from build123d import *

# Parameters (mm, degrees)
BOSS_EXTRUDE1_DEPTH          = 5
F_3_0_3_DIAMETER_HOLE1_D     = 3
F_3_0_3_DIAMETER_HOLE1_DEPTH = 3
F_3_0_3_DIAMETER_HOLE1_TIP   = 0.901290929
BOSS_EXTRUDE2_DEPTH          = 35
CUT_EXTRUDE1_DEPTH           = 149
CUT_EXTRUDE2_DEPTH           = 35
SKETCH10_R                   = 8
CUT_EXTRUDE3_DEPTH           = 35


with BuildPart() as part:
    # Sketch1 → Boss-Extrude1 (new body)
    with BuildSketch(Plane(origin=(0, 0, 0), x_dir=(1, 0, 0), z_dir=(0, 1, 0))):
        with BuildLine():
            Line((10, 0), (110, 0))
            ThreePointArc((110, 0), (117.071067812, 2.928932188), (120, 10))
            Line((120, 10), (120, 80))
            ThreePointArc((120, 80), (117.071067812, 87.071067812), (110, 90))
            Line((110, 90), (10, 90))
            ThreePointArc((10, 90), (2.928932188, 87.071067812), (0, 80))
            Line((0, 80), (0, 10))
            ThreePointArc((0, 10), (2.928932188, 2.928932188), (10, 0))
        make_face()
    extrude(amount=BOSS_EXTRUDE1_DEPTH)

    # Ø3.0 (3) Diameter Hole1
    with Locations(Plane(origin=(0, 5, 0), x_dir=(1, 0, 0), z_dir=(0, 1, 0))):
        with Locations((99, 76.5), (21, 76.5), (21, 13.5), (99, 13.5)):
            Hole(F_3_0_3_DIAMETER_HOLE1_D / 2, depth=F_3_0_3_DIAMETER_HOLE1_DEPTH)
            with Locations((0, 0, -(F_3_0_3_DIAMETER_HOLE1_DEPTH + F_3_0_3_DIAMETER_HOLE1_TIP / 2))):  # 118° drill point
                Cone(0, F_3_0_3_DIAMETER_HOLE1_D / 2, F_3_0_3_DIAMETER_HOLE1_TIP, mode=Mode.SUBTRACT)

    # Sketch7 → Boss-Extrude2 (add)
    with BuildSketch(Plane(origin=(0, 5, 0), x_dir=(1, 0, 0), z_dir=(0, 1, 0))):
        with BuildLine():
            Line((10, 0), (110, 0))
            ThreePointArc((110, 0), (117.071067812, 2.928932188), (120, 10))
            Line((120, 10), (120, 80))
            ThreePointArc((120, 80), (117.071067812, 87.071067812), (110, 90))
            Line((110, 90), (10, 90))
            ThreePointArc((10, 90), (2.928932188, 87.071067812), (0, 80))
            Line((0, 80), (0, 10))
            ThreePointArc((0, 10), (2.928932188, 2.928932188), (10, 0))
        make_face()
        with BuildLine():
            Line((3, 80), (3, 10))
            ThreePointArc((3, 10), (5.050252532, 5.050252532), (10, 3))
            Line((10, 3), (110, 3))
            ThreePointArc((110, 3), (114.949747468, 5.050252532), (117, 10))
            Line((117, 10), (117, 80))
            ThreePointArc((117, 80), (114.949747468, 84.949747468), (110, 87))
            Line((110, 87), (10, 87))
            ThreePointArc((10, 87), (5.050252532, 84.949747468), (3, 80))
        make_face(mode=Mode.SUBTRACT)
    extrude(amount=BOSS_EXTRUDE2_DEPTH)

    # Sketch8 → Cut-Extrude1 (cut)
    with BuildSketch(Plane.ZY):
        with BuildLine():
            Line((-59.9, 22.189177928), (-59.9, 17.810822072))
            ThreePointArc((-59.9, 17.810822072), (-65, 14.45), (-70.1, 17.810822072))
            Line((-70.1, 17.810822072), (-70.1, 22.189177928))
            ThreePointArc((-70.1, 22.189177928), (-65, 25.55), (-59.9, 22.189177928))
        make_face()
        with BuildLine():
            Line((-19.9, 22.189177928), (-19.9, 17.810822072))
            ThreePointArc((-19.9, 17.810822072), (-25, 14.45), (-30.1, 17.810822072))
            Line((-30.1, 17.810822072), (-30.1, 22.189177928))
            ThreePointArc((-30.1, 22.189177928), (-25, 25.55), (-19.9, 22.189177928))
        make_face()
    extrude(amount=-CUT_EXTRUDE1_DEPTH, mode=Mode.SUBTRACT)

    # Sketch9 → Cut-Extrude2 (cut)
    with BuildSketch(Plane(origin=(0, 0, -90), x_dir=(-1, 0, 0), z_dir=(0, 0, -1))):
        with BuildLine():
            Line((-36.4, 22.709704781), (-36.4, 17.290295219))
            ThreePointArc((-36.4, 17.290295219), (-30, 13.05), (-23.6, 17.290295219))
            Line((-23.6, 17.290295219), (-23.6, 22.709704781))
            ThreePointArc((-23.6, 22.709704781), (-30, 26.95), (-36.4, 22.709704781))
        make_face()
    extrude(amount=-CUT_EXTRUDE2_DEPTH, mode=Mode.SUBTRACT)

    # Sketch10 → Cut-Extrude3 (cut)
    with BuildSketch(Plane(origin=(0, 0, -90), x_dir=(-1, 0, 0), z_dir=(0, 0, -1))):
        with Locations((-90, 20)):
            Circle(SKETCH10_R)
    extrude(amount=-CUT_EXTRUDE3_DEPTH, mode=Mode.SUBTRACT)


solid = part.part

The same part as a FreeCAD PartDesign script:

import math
import FreeCAD as App
import Part
import Sketcher
from FreeCAD import Vector

doc = App.newDocument("Part")
body = doc.addObject("PartDesign::Body", "Body")

sketch1 = doc.addObject("Sketcher::SketchObject", "Sketch")
body.addObject(sketch1)
sketch1.AttachmentSupport = (doc.XZ_Plane, [""])
sketch1.MapMode = "FlatFace"
sketch1.addGeometry(Part.LineSegment(Vector(10, 0, 0), Vector(110, 0, 0)), False)
sketch1.addGeometry(Part.ArcOfCircle(Part.Circle(Vector(110, -10, 0), Vector(0, 0, 1), 10), math.radians(0), math.radians(90)), False)
sketch1.addGeometry(Part.LineSegment(Vector(120, -10, 0), Vector(120, -80, 0)), False)
sketch1.addGeometry(Part.ArcOfCircle(Part.Circle(Vector(110, -80, 0), Vector(0, 0, 1), 10), math.radians(-90), math.radians(0)), False)
sketch1.addGeometry(Part.LineSegment(Vector(110, -90, 0), Vector(10, -90, 0)), False)
sketch1.addGeometry(Part.ArcOfCircle(Part.Circle(Vector(10, -80, 0), Vector(0, 0, 1), 10), math.radians(180), math.radians(270)), False)
sketch1.addGeometry(Part.LineSegment(Vector(0, -80, 0), Vector(0, -10, 0)), False)
sketch1.addGeometry(Part.ArcOfCircle(Part.Circle(Vector(10, -10, 0), Vector(0, 0, 1), 10), math.radians(90), math.radians(180)), False)
sketch1.addConstraint(Sketcher.Constraint("Tangent", 0, 2, 1, 2))
sketch1.addConstraint(Sketcher.Constraint("Tangent", 1, 1, 2, 1))
sketch1.addConstraint(Sketcher.Constraint("Tangent", 2, 2, 3, 2))
sketch1.addConstraint(Sketcher.Constraint("Tangent", 3, 1, 4, 1))
sketch1.addConstraint(Sketcher.Constraint("Tangent", 4, 2, 5, 2))
sketch1.addConstraint(Sketcher.Constraint("Tangent", 5, 1, 6, 1))
sketch1.addConstraint(Sketcher.Constraint("Tangent", 6, 2, 7, 2))
sketch1.addConstraint(Sketcher.Constraint("Tangent", 7, 1, 0, 1))
sketch1.addConstraint(Sketcher.Constraint("Horizontal", 0))
sketch1.addConstraint(Sketcher.Constraint("Vertical", 2))
sketch1.addConstraint(Sketcher.Constraint("Horizontal", 4))
sketch1.addConstraint(Sketcher.Constraint("Vertical", 6))
sketch1.addConstraint(Sketcher.Constraint("Equal", 1, 3))
sketch1.addConstraint(Sketcher.Constraint("Equal", 3, 5))
sketch1.addConstraint(Sketcher.Constraint("Equal", 5, 7))
sketch1.addConstraint(Sketcher.Constraint("PointOnObject", 0, 2, -1))
sketch1.addConstraint(Sketcher.Constraint("PointOnObject", 5, 1, -2))
sketch1.addConstraint(Sketcher.Constraint("Radius", 1, 10.0))
sketch1.addConstraint(Sketcher.Constraint("DistanceX", 0, 1, 0, 2, 100.0))
sketch1.addConstraint(Sketcher.Constraint("DistanceY", 2, 2, 2, 1, 70.0))
pad1 = doc.addObject("PartDesign::Pad", "Pad")
body.addObject(pad1)
pad1.Profile = sketch1
pad1.Length = 5
pad1.Reversed = True

sketch2 = doc.addObject("Sketcher::SketchObject", "Sketch001")
body.addObject(sketch2)
sketch2.AttachmentSupport = (doc.XZ_Plane, [""])
sketch2.MapMode = "FlatFace"
sketch2.AttachmentOffset = App.Placement(Vector(0, 0, -5), App.Rotation())
sketch2.addGeometry(Part.Circle(Vector(99, -76.5, 0), Vector(0, 0, 1), 1.5), False)
sketch2.addGeometry(Part.Circle(Vector(21, -76.5, 0), Vector(0, 0, 1), 1.5), False)
sketch2.addGeometry(Part.Circle(Vector(21, -13.5, 0), Vector(0, 0, 1), 1.5), False)
sketch2.addGeometry(Part.Circle(Vector(99, -13.5, 0), Vector(0, 0, 1), 1.5), False)
sketch2.addConstraint(Sketcher.Constraint("Equal", 0, 1))
sketch2.addConstraint(Sketcher.Constraint("Equal", 1, 2))
sketch2.addConstraint(Sketcher.Constraint("Equal", 2, 3))
sketch2.addConstraint(Sketcher.Constraint("Horizontal", 0, 3, 1, 3))
sketch2.addConstraint(Sketcher.Constraint("Horizontal", 2, 3, 3, 3))
sketch2.addConstraint(Sketcher.Constraint("Vertical", 1, 3, 2, 3))
sketch2.addConstraint(Sketcher.Constraint("Vertical", 0, 3, 3, 3))
sketch2.addConstraint(Sketcher.Constraint("Diameter", 0, 3.0))
sketch2.addConstraint(Sketcher.Constraint("DistanceX", -1, 1, 0, 3, 99.0))
sketch2.addConstraint(Sketcher.Constraint("DistanceX", -1, 1, 1, 3, 21.0))
sketch2.addConstraint(Sketcher.Constraint("DistanceY", 1, 3, 2, 3, 63.0))
sketch2.addConstraint(Sketcher.Constraint("DistanceY", 0, 3, -1, 1, 76.5))
doc.recompute()
hole = doc.addObject("PartDesign::Hole", "Hole")
body.addObject(hole)
hole.Profile = sketch2
hole.ThreadType = "None"
hole.Diameter = 3
hole.DepthType = "Dimension"
hole.Depth = 3
hole.DrillPoint = "Angled"
hole.DrillPointAngle = 118
hole.Reversed = True

sketch3 = doc.addObject("Sketcher::SketchObject", "Sketch002")
body.addObject(sketch3)
sketch3.AttachmentSupport = (doc.XZ_Plane, [""])
sketch3.MapMode = "FlatFace"
sketch3.AttachmentOffset = App.Placement(Vector(0, 0, -5), App.Rotation())
sketch3.addGeometry(Part.LineSegment(Vector(10, 0, 0), Vector(110, 0, 0)), False)
sketch3.addGeometry(Part.ArcOfCircle(Part.Circle(Vector(110, -10, 0), Vector(0, 0, 1), 10), math.radians(0), math.radians(90)), False)
sketch3.addGeometry(Part.LineSegment(Vector(120, -10, 0), Vector(120, -80, 0)), False)
sketch3.addGeometry(Part.ArcOfCircle(Part.Circle(Vector(110, -80, 0), Vector(0, 0, 1), 10), math.radians(-90), math.radians(0)), False)
sketch3.addGeometry(Part.LineSegment(Vector(110, -90, 0), Vector(10, -90, 0)), False)
sketch3.addGeometry(Part.ArcOfCircle(Part.Circle(Vector(10, -80, 0), Vector(0, 0, 1), 10), math.radians(180), math.radians(270)), False)
sketch3.addGeometry(Part.LineSegment(Vector(0, -80, 0), Vector(0, -10, 0)), False)
sketch3.addGeometry(Part.ArcOfCircle(Part.Circle(Vector(10, -10, 0), Vector(0, 0, 1), 10), math.radians(90), math.radians(180)), False)
sketch3.addGeometry(Part.LineSegment(Vector(3, -10, 0), Vector(3, -80, 0)), False)
sketch3.addGeometry(Part.ArcOfCircle(Part.Circle(Vector(10, -80, 0), Vector(0, 0, 1), 7), math.radians(-180), math.radians(-90)), False)
sketch3.addGeometry(Part.LineSegment(Vector(10, -87, 0), Vector(110, -87, 0)), False)
sketch3.addGeometry(Part.ArcOfCircle(Part.Circle(Vector(110, -80, 0), Vector(0, 0, 1), 7), math.radians(-90), math.radians(0)), False)
sketch3.addGeometry(Part.LineSegment(Vector(117, -80, 0), Vector(117, -10, 0)), False)
sketch3.addGeometry(Part.ArcOfCircle(Part.Circle(Vector(110, -10, 0), Vector(0, 0, 1), 7), math.radians(0), math.radians(90)), False)
sketch3.addGeometry(Part.LineSegment(Vector(110, -3, 0), Vector(10, -3, 0)), False)
sketch3.addGeometry(Part.ArcOfCircle(Part.Circle(Vector(10, -10, 0), Vector(0, 0, 1), 7), math.radians(90), math.radians(180)), False)
sketch3.addConstraint(Sketcher.Constraint("Tangent", 0, 2, 1, 2))
sketch3.addConstraint(Sketcher.Constraint("Tangent", 1, 1, 2, 1))
sketch3.addConstraint(Sketcher.Constraint("Tangent", 2, 2, 3, 2))
sketch3.addConstraint(Sketcher.Constraint("Tangent", 3, 1, 4, 1))
sketch3.addConstraint(Sketcher.Constraint("Tangent", 4, 2, 5, 2))
sketch3.addConstraint(Sketcher.Constraint("Tangent", 5, 1, 6, 1))
sketch3.addConstraint(Sketcher.Constraint("Tangent", 6, 2, 7, 2))
sketch3.addConstraint(Sketcher.Constraint("Tangent", 7, 1, 0, 1))
sketch3.addConstraint(Sketcher.Constraint("Tangent", 8, 2, 9, 1))
sketch3.addConstraint(Sketcher.Constraint("Tangent", 9, 2, 10, 1))
sketch3.addConstraint(Sketcher.Constraint("Tangent", 10, 2, 11, 1))
sketch3.addConstraint(Sketcher.Constraint("Tangent", 11, 2, 12, 1))
sketch3.addConstraint(Sketcher.Constraint("Tangent", 12, 2, 13, 1))
sketch3.addConstraint(Sketcher.Constraint("Tangent", 13, 2, 14, 1))
sketch3.addConstraint(Sketcher.Constraint("Tangent", 14, 2, 15, 1))
sketch3.addConstraint(Sketcher.Constraint("Tangent", 15, 2, 8, 1))
sketch3.addConstraint(Sketcher.Constraint("Horizontal", 0))
sketch3.addConstraint(Sketcher.Constraint("Vertical", 2))
sketch3.addConstraint(Sketcher.Constraint("Horizontal", 4))
sketch3.addConstraint(Sketcher.Constraint("Vertical", 6))
sketch3.addConstraint(Sketcher.Constraint("Vertical", 8))
sketch3.addConstraint(Sketcher.Constraint("Horizontal", 10))
sketch3.addConstraint(Sketcher.Constraint("Vertical", 12))
sketch3.addConstraint(Sketcher.Constraint("Horizontal", 14))
sketch3.addConstraint(Sketcher.Constraint("Coincident", 9, 3, 5, 3))
sketch3.addConstraint(Sketcher.Constraint("Coincident", 11, 3, 3, 3))
sketch3.addConstraint(Sketcher.Constraint("Coincident", 13, 3, 1, 3))
sketch3.addConstraint(Sketcher.Constraint("Equal", 1, 3))
sketch3.addConstraint(Sketcher.Constraint("Equal", 3, 5))
sketch3.addConstraint(Sketcher.Constraint("Equal", 5, 7))
sketch3.addConstraint(Sketcher.Constraint("Equal", 13, 15))
sketch3.addConstraint(Sketcher.Constraint("PointOnObject", 0, 2, -1))
sketch3.addConstraint(Sketcher.Constraint("PointOnObject", 5, 1, -2))
sketch3.addConstraint(Sketcher.Constraint("Radius", 1, 10.0))
sketch3.addConstraint(Sketcher.Constraint("Radius", 9, 7.0))
sketch3.addConstraint(Sketcher.Constraint("DistanceX", 0, 1, 0, 2, 100.0))
sketch3.addConstraint(Sketcher.Constraint("DistanceY", 2, 2, 2, 1, 70.0))
pad2 = doc.addObject("PartDesign::Pad", "Pad001")
body.addObject(pad2)
pad2.Profile = sketch3
pad2.Length = 35
pad2.Reversed = True

sketch4 = doc.addObject("Sketcher::SketchObject", "Sketch003")
body.addObject(sketch4)
sketch4.AttachmentSupport = (doc.YZ_Plane, [""])
sketch4.MapMode = "FlatFace"
sketch4.addGeometry(Part.LineSegment(Vector(17.8, -59.9, 0), Vector(22.2, -59.9, 0)), False)
sketch4.addGeometry(Part.ArcOfCircle(Part.Circle(Vector(20, -65, 0), Vector(0, 0, 1), 5.5), math.radians(-67), math.radians(67)), False)
sketch4.addGeometry(Part.LineSegment(Vector(22.2, -70.1, 0), Vector(17.8, -70.1, 0)), False)
sketch4.addGeometry(Part.ArcOfCircle(Part.Circle(Vector(20, -65, 0), Vector(0, 0, 1), 5.5), math.radians(113), math.radians(247)), False)
sketch4.addGeometry(Part.LineSegment(Vector(17.8, -19.9, 0), Vector(22.2, -19.9, 0)), False)
sketch4.addGeometry(Part.ArcOfCircle(Part.Circle(Vector(20, -25, 0), Vector(0, 0, 1), 5.5), math.radians(-67), math.radians(67)), False)
sketch4.addGeometry(Part.LineSegment(Vector(22.2, -30.1, 0), Vector(17.8, -30.1, 0)), False)
sketch4.addGeometry(Part.ArcOfCircle(Part.Circle(Vector(20, -25, 0), Vector(0, 0, 1), 5.5), math.radians(113), math.radians(247)), False)
sketch4.addConstraint(Sketcher.Constraint("Coincident", 0, 2, 1, 2))
sketch4.addConstraint(Sketcher.Constraint("Coincident", 1, 1, 2, 1))
sketch4.addConstraint(Sketcher.Constraint("Coincident", 2, 2, 3, 2))
sketch4.addConstraint(Sketcher.Constraint("Coincident", 3, 1, 0, 1))
sketch4.addConstraint(Sketcher.Constraint("Coincident", 4, 2, 5, 2))
sketch4.addConstraint(Sketcher.Constraint("Coincident", 5, 1, 6, 1))
sketch4.addConstraint(Sketcher.Constraint("Coincident", 6, 2, 7, 2))
sketch4.addConstraint(Sketcher.Constraint("Coincident", 7, 1, 4, 1))
sketch4.addConstraint(Sketcher.Constraint("Horizontal", 0))
sketch4.addConstraint(Sketcher.Constraint("Horizontal", 2))
sketch4.addConstraint(Sketcher.Constraint("Horizontal", 4))
sketch4.addConstraint(Sketcher.Constraint("Horizontal", 6))
sketch4.addConstraint(Sketcher.Constraint("Coincident", 3, 3, 1, 3))
sketch4.addConstraint(Sketcher.Constraint("Coincident", 7, 3, 5, 3))
sketch4.addConstraint(Sketcher.Constraint("Equal", 1, 3))
sketch4.addConstraint(Sketcher.Constraint("Equal", 3, 5))
sketch4.addConstraint(Sketcher.Constraint("Equal", 5, 7))
sketch4.addConstraint(Sketcher.Constraint("Vertical", 3, 3, 5, 3))
sketch4.addConstraint(Sketcher.Constraint("Vertical", 0, 2, 1, 1))
sketch4.addConstraint(Sketcher.Constraint("Vertical", 1, 1, 4, 2))
sketch4.addConstraint(Sketcher.Constraint("Vertical", 4, 2, 5, 1))
sketch4.addConstraint(Sketcher.Constraint("Radius", 1, 5.55))
sketch4.addConstraint(Sketcher.Constraint("DistanceX", -1, 1, 1, 3, 20.0))
sketch4.addConstraint(Sketcher.Constraint("DistanceY", 1, 3, -1, 1, 65.0))
sketch4.addConstraint(Sketcher.Constraint("DistanceY", 5, 3, -1, 1, 25.0))
sketch4.addConstraint(Sketcher.Constraint("DistanceY", 0, 2, -1, 1, 59.9))
pocket1 = doc.addObject("PartDesign::Pocket", "Pocket")
body.addObject(pocket1)
pocket1.Profile = sketch4
pocket1.Length = 149
pocket1.Reversed = True

sketch5 = doc.addObject("Sketcher::SketchObject", "Sketch004")
body.addObject(sketch5)
sketch5.AttachmentSupport = (doc.XY_Plane, [""])
sketch5.MapMode = "FlatFace"
sketch5.AttachmentOffset = App.Placement(Vector(0, 0, -90), App.Rotation())
sketch5.addGeometry(Part.LineSegment(Vector(36, 23, 0), Vector(36, 17, 0)), False)
sketch5.addGeometry(Part.ArcOfCircle(Part.Circle(Vector(30, 20, 0), Vector(0, 0, 1), 7), math.radians(-157), math.radians(-23)), False)
sketch5.addGeometry(Part.LineSegment(Vector(24, 17, 0), Vector(24, 23, 0)), False)
sketch5.addGeometry(Part.ArcOfCircle(Part.Circle(Vector(30, 20, 0), Vector(0, 0, 1), 7), math.radians(23), math.radians(157)), False)
sketch5.addConstraint(Sketcher.Constraint("Coincident", 0, 2, 1, 2))
sketch5.addConstraint(Sketcher.Constraint("Coincident", 1, 1, 2, 1))
sketch5.addConstraint(Sketcher.Constraint("Coincident", 2, 2, 3, 2))
sketch5.addConstraint(Sketcher.Constraint("Coincident", 3, 1, 0, 1))
sketch5.addConstraint(Sketcher.Constraint("Vertical", 0))
sketch5.addConstraint(Sketcher.Constraint("Vertical", 2))
sketch5.addConstraint(Sketcher.Constraint("Coincident", 3, 3, 1, 3))
sketch5.addConstraint(Sketcher.Constraint("Equal", 1, 3))
sketch5.addConstraint(Sketcher.Constraint("Horizontal", 0, 2, 1, 1))
sketch5.addConstraint(Sketcher.Constraint("Radius", 1, 6.95))
sketch5.addConstraint(Sketcher.Constraint("DistanceX", -1, 1, 1, 3, 30.0))
sketch5.addConstraint(Sketcher.Constraint("DistanceY", -1, 1, 1, 3, 20.0))
sketch5.addConstraint(Sketcher.Constraint("DistanceX", -1, 1, 0, 2, 36.4))
pocket2 = doc.addObject("PartDesign::Pocket", "Pocket001")
body.addObject(pocket2)
pocket2.Profile = sketch5
pocket2.Length = 35
pocket2.Reversed = True

sketch6 = doc.addObject("Sketcher::SketchObject", "Sketch005")
body.addObject(sketch6)
sketch6.AttachmentSupport = (doc.XY_Plane, [""])
sketch6.MapMode = "FlatFace"
sketch6.AttachmentOffset = App.Placement(Vector(0, 0, -90), App.Rotation())
sketch6.addGeometry(Part.Circle(Vector(90, 20, 0), Vector(0, 0, 1), 8), False)
sketch6.addConstraint(Sketcher.Constraint("Diameter", 0, 16.0))
sketch6.addConstraint(Sketcher.Constraint("DistanceX", -1, 1, 0, 3, 90.0))
sketch6.addConstraint(Sketcher.Constraint("DistanceY", -1, 1, 0, 3, 20.0))
pocket3 = doc.addObject("PartDesign::Pocket", "Pocket002")
body.addObject(pocket3)
pocket3.Profile = sketch6
pocket3.Length = 35
pocket3.Reversed = True

doc.recompute()
